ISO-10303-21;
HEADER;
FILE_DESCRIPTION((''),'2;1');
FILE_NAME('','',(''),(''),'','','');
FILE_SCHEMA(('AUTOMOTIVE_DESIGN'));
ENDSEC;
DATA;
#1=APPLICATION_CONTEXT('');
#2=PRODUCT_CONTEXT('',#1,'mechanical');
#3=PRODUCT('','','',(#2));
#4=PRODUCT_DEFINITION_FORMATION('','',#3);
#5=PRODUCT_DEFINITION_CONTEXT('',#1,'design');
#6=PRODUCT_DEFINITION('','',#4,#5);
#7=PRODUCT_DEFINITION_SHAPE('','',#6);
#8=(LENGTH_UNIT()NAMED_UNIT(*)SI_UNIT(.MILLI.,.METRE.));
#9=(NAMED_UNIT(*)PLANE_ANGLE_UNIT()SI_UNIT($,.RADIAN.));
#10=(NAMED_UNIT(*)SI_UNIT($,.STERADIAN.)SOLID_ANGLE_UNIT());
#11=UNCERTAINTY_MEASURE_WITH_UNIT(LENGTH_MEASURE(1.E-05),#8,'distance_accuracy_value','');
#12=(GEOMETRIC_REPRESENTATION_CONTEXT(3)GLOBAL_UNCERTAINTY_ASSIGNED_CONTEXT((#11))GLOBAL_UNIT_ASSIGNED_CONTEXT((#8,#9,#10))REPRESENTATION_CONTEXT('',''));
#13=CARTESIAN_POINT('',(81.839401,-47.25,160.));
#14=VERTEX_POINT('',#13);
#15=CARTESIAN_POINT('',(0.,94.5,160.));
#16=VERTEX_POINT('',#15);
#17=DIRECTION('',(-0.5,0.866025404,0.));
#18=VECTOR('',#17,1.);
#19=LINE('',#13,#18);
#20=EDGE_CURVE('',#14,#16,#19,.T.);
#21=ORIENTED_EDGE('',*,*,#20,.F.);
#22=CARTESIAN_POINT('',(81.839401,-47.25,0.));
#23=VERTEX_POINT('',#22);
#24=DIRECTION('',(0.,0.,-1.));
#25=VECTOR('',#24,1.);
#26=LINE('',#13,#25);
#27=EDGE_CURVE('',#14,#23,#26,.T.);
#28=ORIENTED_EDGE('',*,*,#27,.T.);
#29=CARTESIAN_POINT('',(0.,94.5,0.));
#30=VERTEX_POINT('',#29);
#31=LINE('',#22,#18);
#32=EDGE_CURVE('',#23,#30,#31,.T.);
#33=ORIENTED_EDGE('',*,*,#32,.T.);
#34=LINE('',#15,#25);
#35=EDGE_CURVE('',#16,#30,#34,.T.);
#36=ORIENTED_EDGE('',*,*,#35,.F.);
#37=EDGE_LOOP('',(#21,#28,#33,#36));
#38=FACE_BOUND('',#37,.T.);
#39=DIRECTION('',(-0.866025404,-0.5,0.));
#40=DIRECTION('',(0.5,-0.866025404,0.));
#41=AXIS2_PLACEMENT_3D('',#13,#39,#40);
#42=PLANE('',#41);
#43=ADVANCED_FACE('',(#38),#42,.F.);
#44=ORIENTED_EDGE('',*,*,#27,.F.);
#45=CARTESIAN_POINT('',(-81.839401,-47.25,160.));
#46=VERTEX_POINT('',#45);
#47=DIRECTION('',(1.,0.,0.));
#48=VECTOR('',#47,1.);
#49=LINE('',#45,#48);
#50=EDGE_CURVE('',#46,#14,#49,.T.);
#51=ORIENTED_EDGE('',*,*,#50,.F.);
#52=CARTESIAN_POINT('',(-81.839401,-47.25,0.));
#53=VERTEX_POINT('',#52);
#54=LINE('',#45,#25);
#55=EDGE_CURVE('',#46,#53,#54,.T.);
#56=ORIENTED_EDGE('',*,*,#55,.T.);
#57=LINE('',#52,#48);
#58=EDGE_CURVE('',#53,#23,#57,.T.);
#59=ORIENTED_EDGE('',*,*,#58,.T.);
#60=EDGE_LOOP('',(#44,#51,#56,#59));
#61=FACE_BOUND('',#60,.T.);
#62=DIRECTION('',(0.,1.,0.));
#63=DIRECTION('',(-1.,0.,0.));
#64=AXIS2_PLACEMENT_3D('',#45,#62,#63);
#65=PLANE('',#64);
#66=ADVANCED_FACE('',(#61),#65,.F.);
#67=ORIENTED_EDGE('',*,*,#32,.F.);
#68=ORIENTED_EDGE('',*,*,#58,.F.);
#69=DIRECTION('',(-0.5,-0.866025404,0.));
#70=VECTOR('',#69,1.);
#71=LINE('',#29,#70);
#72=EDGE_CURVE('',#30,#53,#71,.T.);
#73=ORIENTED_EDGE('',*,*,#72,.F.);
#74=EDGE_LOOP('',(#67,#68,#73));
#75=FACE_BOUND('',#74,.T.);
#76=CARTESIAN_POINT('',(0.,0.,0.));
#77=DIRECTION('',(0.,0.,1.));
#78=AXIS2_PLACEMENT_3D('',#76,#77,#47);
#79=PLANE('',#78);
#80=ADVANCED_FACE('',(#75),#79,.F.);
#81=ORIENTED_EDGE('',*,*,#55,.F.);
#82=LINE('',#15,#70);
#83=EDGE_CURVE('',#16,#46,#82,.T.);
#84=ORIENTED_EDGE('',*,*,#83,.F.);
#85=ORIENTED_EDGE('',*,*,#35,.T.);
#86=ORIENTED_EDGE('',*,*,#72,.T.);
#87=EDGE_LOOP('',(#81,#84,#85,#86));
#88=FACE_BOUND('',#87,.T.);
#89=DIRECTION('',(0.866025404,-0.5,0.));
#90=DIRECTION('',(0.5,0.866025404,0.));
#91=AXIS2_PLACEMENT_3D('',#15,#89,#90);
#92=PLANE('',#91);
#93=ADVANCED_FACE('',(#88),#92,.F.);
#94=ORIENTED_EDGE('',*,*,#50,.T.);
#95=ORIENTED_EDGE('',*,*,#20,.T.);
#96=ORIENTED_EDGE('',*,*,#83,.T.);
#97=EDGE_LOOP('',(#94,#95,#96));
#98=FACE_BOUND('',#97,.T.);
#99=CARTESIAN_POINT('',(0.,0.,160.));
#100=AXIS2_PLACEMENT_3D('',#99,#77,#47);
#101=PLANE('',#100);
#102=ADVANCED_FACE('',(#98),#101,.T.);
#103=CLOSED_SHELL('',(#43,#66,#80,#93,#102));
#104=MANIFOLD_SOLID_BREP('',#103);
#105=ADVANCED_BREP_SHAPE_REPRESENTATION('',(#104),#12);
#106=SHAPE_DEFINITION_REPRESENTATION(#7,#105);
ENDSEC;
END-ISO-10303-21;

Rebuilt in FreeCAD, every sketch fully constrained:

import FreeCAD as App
import Part
import Sketcher

V = App.Vector
Q = App.Units.Quantity

doc = App.newDocument("Part")
body = doc.addObject("PartDesign::Body", "Body")

# Sketch on XY plane
sketch1 = doc.addObject("Sketcher::SketchObject", "Sketch")
body.addObject(sketch1)
sketch1.AttachmentSupport = (doc.XY_Plane, [""])
sketch1.MapMode = "FlatFace"
sketch1.addGeometry([
    Part.LineSegment(V(0, 94, 0), V(-82, -47, 0)),
    Part.LineSegment(V(-82, -47, 0), V(82, -47, 0)),
    Part.LineSegment(V(82, -47, 0), V(0, 94, 0)),
], False)
sketch1.addConstraint([
    Sketcher.Constraint("Coincident", 0, 2, 1, 1),
    Sketcher.Constraint("Coincident", 1, 2, 2, 1),
    Sketcher.Constraint("Coincident", 2, 2, 0, 1),
    Sketcher.Constraint("Horizontal", 1),
    Sketcher.Constraint("PointOnObject", 2, 2, -2),
    Sketcher.Constraint("Equal", 0, 2),
    Sketcher.Constraint("Angle", 0, Q("-120 deg")),
    Sketcher.Constraint("DistanceY", -1, 1, 2, 2, 94.5),
    Sketcher.Constraint("DistanceY", 0, 2, -1, 1, 47.25),
])
pad1 = doc.addObject("PartDesign::Pad", "Pad")
body.addObject(pad1)
pad1.Profile = sketch1
pad1.Length = 160

doc.recompute()
